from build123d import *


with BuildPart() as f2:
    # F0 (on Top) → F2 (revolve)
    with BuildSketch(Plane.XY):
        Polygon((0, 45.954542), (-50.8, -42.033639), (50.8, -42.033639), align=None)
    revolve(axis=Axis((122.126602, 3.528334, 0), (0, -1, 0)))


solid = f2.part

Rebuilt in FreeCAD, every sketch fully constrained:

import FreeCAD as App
import Part
import Sketcher

V = App.Vector
Q = App.Units.Quantity

doc = App.newDocument("Part")
params = doc.addObject("Spreadsheet::Sheet", "Params")
for row, (alias, value) in enumerate([
    ("sketch1_width", "4 in"),
    ("sketch1_length", "4 in"),
    ("revolution_angle", "360 deg"),
], start=1):
    params.set(f"A{row}", alias)
    params.set(f"B{row}", "=" + value)
    params.setAlias(f"B{row}", alias)

body = doc.addObject("PartDesign::Body", "Body")

# Sketch on XY plane
sketch1 = body.newObject("Sketcher::SketchObject", "Sketch")
sketch1.AttachmentSupport = (doc.getObject("XY_Plane"), [""])
sketch1.MapMode = "FlatFace"
sketch1.addGeometry([
    Part.LineSegment(V(0, 46, 0), V(-51, -42, 0)),
    Part.LineSegment(V(-51, -42, 0), V(51, -42, 0)),
    Part.LineSegment(V(51, -42, 0), V(0, 46, 0)),
], False)
sketch1.addGeometry(Part.LineSegment(V(122, 46, 0), V(122, -42, 0)), True)  # axis
sketch1.addConstraint([
    Sketcher.Constraint("Coincident", 0, 2, 1, 1),
    Sketcher.Constraint("Coincident", 1, 2, 2, 1),
    Sketcher.Constraint("Coincident", 2, 2, 0, 1),
    Sketcher.Constraint("Horizontal", 1),
    Sketcher.Constraint("Vertical", 3),
    Sketcher.Constraint("PointOnObject", 2, 2, -2),
    Sketcher.Constraint("Horizontal", 2, 2, 3, 1),
    Sketcher.Constraint("Horizontal", 1, 2, 3, 2),
    Sketcher.Constraint("Equal", 0, 2),
    Sketcher.Constraint("DistanceX", 1, 1, 1, 2, Q("4 in")),
    Sketcher.Constraint("Distance", 0, Q("4 in")),
    Sketcher.Constraint("DistanceX", 0, 2, 3, 1, 172.926602),
    Sketcher.Constraint("DistanceY", 0, 2, -1, 1, 42.033639),
])
sketch1.setExpression("Constraints[9]", "Params.sketch1_width")
sketch1.setExpression("Constraints[10]", "Params.sketch1_length")
revolution = body.newObject("PartDesign::Revolution", "Revolution")
revolution.Profile = sketch1
revolution.ReferenceAxis = (sketch1, ["Axis0"])
revolution.setExpression("Angle", "Params.revolution_angle")

doc.recompute()
